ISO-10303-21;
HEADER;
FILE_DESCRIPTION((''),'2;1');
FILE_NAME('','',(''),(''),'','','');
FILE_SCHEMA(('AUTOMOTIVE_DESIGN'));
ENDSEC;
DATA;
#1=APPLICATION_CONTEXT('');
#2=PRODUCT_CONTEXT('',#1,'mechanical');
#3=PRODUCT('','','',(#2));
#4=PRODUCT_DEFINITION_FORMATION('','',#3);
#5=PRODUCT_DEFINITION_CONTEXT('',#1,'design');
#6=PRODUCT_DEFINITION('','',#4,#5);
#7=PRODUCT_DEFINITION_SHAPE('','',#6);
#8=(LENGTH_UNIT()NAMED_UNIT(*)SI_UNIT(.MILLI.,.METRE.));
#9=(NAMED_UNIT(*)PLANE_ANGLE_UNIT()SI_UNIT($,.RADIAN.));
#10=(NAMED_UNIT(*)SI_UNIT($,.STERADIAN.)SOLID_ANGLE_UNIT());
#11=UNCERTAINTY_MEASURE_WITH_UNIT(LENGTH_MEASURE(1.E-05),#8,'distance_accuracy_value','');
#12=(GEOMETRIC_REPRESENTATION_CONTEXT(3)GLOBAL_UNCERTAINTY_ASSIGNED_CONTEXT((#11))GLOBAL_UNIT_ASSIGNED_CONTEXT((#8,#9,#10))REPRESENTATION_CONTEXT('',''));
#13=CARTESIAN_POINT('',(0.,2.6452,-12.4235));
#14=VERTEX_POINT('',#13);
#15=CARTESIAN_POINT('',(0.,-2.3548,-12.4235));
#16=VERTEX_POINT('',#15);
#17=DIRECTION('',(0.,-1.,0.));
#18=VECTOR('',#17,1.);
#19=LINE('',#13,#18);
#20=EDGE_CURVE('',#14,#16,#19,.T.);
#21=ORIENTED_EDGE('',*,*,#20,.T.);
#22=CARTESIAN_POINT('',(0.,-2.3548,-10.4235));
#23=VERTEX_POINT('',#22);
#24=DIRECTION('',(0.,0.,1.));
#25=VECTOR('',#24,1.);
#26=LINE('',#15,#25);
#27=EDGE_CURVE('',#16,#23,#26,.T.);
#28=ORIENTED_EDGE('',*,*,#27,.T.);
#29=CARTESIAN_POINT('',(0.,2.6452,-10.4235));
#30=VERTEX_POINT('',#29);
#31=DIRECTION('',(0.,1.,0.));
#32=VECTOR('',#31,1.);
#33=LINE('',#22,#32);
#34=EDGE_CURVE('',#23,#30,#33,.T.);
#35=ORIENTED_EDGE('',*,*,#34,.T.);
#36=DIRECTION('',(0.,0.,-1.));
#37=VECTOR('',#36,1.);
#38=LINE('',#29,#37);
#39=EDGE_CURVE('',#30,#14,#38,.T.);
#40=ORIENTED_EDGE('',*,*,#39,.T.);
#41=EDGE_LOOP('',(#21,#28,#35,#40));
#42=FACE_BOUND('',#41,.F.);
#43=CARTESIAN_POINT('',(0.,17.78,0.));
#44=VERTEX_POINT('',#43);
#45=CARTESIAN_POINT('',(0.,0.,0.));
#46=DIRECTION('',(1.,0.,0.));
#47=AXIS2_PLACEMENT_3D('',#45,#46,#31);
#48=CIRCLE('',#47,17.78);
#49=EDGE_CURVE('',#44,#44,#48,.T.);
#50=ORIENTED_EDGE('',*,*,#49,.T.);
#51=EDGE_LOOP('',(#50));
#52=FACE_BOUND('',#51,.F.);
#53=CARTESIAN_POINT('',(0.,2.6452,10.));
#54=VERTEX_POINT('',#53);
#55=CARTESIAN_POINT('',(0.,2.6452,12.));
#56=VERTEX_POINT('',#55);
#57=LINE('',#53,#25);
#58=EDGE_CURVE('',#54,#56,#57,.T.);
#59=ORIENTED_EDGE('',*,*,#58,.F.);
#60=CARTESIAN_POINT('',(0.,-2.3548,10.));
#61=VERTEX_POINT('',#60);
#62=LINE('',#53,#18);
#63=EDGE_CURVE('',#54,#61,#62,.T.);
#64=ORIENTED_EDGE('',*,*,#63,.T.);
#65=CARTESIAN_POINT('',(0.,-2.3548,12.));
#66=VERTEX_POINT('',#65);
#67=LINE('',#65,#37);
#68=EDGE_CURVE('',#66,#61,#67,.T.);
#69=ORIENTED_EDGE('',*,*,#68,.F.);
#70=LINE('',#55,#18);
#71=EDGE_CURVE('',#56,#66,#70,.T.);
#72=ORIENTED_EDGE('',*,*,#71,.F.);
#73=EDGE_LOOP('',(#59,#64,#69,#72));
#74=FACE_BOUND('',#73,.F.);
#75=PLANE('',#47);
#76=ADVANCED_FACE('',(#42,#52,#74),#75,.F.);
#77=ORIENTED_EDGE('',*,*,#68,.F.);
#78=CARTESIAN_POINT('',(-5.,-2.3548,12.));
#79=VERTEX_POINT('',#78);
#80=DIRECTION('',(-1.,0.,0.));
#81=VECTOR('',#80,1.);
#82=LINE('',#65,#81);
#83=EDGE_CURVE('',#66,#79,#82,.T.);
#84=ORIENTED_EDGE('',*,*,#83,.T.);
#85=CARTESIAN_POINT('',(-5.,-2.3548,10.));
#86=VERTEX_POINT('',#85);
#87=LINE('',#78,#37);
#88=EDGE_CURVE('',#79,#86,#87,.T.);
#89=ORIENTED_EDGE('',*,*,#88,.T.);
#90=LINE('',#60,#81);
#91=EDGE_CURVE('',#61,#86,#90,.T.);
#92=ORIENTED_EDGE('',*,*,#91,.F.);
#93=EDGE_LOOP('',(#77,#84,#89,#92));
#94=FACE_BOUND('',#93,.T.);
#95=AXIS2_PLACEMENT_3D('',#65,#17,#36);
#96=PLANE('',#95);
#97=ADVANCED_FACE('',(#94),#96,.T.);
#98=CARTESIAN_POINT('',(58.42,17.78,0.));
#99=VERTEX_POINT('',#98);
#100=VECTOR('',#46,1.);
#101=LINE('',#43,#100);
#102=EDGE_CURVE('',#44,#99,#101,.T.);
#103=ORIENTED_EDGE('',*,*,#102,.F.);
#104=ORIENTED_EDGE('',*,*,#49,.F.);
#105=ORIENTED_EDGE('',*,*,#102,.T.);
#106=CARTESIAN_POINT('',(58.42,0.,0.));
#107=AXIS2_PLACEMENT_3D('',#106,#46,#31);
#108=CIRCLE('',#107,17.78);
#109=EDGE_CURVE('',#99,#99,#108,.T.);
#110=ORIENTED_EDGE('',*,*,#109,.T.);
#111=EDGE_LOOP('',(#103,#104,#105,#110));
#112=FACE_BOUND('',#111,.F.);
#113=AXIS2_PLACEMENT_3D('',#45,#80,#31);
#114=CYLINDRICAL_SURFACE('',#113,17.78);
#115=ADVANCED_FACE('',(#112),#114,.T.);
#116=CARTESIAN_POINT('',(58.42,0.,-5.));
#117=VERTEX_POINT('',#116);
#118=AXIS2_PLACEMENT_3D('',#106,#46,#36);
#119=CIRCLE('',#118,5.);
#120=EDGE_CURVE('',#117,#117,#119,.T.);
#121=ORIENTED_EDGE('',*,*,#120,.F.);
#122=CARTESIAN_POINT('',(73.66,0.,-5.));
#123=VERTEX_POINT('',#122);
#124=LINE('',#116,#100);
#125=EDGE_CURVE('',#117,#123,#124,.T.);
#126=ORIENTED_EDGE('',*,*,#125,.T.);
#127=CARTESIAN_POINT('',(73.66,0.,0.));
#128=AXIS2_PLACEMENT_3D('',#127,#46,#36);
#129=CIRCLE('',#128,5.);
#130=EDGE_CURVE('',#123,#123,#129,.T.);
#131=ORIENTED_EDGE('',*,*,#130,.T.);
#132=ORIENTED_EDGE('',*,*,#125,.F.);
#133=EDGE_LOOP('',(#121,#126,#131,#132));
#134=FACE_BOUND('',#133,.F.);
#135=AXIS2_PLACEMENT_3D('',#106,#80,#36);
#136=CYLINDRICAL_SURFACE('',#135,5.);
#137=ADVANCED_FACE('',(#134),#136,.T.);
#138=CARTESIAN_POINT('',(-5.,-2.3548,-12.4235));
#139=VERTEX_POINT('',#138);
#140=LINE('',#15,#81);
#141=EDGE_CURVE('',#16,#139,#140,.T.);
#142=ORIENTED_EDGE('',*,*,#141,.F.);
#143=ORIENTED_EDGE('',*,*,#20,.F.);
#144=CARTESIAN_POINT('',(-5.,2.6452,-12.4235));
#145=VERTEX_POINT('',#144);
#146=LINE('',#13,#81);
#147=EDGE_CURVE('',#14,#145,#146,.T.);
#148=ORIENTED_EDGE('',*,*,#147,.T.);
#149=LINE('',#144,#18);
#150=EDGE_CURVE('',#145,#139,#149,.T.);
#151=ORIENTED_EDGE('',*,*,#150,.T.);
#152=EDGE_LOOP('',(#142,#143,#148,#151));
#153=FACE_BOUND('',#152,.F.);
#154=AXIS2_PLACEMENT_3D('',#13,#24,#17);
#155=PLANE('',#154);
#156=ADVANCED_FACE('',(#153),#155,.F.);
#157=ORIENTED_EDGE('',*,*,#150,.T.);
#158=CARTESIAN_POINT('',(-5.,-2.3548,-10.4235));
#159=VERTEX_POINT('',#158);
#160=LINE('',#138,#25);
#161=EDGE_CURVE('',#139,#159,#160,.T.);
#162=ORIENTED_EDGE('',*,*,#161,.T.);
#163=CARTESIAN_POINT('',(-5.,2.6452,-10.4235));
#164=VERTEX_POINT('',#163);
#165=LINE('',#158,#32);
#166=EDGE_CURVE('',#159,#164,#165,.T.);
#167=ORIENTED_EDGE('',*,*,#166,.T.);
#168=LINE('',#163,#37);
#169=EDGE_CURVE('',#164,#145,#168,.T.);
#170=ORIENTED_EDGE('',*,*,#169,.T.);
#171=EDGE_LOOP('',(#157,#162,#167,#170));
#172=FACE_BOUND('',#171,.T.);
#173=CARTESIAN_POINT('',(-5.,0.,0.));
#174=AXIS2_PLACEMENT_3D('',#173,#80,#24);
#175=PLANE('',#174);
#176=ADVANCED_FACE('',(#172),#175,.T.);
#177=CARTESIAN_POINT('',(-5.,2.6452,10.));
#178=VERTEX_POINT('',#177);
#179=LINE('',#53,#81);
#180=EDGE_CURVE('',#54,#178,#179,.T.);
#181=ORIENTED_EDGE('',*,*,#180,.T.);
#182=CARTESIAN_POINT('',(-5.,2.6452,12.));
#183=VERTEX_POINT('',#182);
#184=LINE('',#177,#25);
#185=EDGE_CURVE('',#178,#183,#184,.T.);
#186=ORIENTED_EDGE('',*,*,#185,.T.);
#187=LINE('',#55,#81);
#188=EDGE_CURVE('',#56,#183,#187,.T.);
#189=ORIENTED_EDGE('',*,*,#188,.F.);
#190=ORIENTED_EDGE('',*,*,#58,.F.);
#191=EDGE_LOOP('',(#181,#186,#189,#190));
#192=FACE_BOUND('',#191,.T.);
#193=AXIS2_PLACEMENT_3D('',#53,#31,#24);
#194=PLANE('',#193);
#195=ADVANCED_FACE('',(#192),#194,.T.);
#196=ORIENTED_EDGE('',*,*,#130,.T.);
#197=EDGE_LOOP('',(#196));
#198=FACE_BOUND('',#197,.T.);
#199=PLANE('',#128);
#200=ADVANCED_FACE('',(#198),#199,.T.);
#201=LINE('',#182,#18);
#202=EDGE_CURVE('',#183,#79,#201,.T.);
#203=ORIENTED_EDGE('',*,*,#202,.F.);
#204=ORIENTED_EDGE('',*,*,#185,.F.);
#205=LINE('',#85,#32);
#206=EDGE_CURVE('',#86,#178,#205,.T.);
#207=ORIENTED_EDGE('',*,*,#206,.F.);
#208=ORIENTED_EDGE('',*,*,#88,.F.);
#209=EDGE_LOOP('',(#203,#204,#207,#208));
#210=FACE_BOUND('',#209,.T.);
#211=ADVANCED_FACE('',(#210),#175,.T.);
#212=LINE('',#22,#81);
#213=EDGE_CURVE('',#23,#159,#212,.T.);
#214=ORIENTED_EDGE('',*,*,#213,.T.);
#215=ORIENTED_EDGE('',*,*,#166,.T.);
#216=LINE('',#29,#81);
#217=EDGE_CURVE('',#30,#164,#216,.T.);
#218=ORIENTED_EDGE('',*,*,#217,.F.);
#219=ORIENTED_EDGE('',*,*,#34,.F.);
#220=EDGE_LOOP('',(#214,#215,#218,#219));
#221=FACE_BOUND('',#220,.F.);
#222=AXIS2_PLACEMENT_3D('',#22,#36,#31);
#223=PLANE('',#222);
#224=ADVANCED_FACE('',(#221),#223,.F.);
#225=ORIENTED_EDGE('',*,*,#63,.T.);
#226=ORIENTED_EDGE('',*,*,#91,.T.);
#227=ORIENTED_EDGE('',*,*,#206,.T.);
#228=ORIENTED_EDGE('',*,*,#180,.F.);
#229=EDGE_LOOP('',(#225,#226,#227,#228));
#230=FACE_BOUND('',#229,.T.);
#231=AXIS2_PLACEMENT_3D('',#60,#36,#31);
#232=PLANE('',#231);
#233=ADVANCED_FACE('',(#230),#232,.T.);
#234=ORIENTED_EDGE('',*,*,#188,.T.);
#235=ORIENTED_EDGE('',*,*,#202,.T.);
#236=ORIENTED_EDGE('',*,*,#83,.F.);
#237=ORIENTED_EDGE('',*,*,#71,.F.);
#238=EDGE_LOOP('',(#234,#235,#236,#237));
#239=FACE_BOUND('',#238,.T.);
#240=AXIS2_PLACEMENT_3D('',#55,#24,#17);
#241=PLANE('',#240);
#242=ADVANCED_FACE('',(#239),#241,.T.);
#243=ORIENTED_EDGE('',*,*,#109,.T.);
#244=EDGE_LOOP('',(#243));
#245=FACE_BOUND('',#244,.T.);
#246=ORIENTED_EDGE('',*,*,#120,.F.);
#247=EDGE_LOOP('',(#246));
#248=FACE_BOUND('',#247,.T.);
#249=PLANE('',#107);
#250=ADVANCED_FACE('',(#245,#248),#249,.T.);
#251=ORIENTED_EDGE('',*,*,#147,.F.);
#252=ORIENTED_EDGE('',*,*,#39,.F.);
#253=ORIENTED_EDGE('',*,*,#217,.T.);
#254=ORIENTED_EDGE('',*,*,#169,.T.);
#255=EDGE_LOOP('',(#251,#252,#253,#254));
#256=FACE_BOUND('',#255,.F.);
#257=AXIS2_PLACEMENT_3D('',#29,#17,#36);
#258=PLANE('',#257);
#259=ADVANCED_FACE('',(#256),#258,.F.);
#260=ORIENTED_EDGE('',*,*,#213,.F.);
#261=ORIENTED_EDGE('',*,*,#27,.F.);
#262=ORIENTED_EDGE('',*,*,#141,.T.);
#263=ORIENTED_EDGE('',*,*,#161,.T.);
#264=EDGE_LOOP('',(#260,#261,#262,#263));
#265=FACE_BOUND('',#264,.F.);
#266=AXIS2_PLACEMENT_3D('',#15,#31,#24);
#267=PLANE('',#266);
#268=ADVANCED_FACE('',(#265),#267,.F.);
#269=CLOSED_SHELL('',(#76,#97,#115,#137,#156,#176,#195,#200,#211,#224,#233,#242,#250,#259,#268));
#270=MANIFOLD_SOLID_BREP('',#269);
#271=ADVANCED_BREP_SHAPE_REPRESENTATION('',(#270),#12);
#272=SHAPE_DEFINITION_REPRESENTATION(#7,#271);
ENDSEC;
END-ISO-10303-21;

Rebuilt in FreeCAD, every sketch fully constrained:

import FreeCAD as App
import Part
import Sketcher

V = App.Vector
Q = App.Units.Quantity

doc = App.newDocument("Part")
body = doc.addObject("PartDesign::Body", "Body")

sketch1 = body.newObject("Sketcher::SketchObject", "Sketch")
sketch1.AttachmentSupport = (doc.getObject("YZ_Plane"), [""])
sketch1.MapMode = "FlatFace"
sketch1.addGeometry(Part.Circle(V(0, 0, 0), V(0, 0, 1), 17.78), False)
sketch1.addConstraint([
    Sketcher.Constraint("Coincident", 0, 3, -1, 1),
    Sketcher.Constraint("Diameter", 0, Q("1.4 in")),
])
pad1 = body.newObject("PartDesign::Pad", "Pad")
pad1.Profile = sketch1
pad1.Length = Q("2.3 in")

sketch2 = body.newObject("Sketcher::SketchObject", "Sketch001")
sketch2.AttachmentSupport = (doc.getObject("YZ_Plane"), [""])
sketch2.MapMode = "FlatFace"
sketch2.AttachmentOffset = App.Placement(V(0, 0, 2.3 * 25.4), App.Rotation())
sketch2.addGeometry(Part.Circle(V(0, 0, 0), V(0, 0, 1), 5), False)
sketch2.addConstraint([
    Sketcher.Constraint("Coincident", 0, 3, -1, 1),
    Sketcher.Constraint("Diameter", 0, Q("0.3937 in")),
])
pad2 = body.newObject("PartDesign::Pad", "Pad001")
pad2.Profile = sketch2
pad2.Length = Q("0.6 in")

sketch3 = body.newObject("Sketcher::SketchObject", "Sketch002")
sketch3.AttachmentSupport = (doc.getObject("YZ_Plane"), [""])
sketch3.MapMode = "FlatFace"
sketch3.addGeometry([
    Part.LineSegment(V(2.6452, 12, 0), V(2.6452, 10, 0)),
    Part.LineSegment(V(2.6452, 10, 0), V(-2.3548, 10, 0)),
    Part.LineSegment(V(-2.3548, 10, 0), V(-2.3548, 12, 0)),
    Part.LineSegment(V(-2.3548, 12, 0), V(2.6452, 12, 0)),
    Part.LineSegment(V(-2.3548, -10.4235, 0), V(2.6452, -10.4235, 0)),
    Part.LineSegment(V(2.6452, -10.4235, 0), V(2.6452, -12.4235, 0)),
    Part.LineSegment(V(2.6452, -12.4235, 0), V(-2.3548, -12.4235, 0)),
    Part.LineSegment(V(-2.3548, -12.4235, 0), V(-2.3548, -10.4235, 0)),
], False)
sketch3.addConstraint([
    Sketcher.Constraint("Coincident", 0, 2, 1, 1),
    Sketcher.Constraint("Coincident", 1, 2, 2, 1),
    Sketcher.Constraint("Coincident", 2, 2, 3, 1),
    Sketcher.Constraint("Coincident", 3, 2, 0, 1),
    Sketcher.Constraint("Coincident", 4, 2, 5, 1),
    Sketcher.Constraint("Coincident", 5, 2, 6, 1),
    Sketcher.Constraint("Coincident", 6, 2, 7, 1),
    Sketcher.Constraint("Coincident", 7, 2, 4, 1),
    Sketcher.Constraint("Vertical", 0),
    Sketcher.Constraint("Horizontal", 1),
    Sketcher.Constraint("Vertical", 2),
    Sketcher.Constraint("Horizontal", 3),
    Sketcher.Constraint("Horizontal", 4),
    Sketcher.Constraint("Vertical", 5),
    Sketcher.Constraint("Horizontal", 6),
    Sketcher.Constraint("Vertical", 7),
    Sketcher.Constraint("Vertical", 3, 2, 4, 2),
    Sketcher.Constraint("Vertical", 2, 2, 6, 2),
    Sketcher.Constraint("Equal", 2, 5),
    Sketcher.Constraint("DistanceX", 1, 2, 1, 1, Q("5 mm")),
    Sketcher.Constraint("DistanceY", 0, 2, 0, 1, Q("2 mm")),
    Sketcher.Constraint("DistanceY", -1, 1, 0, 2, Q("0.3937 in")),
    Sketcher.Constraint("DistanceX", 1, 2, -1, 1, Q("0.0927 in")),
    Sketcher.Constraint("DistanceY", 4, 2, -1, 1, Q("10.4235 mm")),
])
pad3 = body.newObject("PartDesign::Pad", "Pad002")
pad3.Profile = sketch3
pad3.Length = 5
pad3.Reversed = True

doc.recompute()
